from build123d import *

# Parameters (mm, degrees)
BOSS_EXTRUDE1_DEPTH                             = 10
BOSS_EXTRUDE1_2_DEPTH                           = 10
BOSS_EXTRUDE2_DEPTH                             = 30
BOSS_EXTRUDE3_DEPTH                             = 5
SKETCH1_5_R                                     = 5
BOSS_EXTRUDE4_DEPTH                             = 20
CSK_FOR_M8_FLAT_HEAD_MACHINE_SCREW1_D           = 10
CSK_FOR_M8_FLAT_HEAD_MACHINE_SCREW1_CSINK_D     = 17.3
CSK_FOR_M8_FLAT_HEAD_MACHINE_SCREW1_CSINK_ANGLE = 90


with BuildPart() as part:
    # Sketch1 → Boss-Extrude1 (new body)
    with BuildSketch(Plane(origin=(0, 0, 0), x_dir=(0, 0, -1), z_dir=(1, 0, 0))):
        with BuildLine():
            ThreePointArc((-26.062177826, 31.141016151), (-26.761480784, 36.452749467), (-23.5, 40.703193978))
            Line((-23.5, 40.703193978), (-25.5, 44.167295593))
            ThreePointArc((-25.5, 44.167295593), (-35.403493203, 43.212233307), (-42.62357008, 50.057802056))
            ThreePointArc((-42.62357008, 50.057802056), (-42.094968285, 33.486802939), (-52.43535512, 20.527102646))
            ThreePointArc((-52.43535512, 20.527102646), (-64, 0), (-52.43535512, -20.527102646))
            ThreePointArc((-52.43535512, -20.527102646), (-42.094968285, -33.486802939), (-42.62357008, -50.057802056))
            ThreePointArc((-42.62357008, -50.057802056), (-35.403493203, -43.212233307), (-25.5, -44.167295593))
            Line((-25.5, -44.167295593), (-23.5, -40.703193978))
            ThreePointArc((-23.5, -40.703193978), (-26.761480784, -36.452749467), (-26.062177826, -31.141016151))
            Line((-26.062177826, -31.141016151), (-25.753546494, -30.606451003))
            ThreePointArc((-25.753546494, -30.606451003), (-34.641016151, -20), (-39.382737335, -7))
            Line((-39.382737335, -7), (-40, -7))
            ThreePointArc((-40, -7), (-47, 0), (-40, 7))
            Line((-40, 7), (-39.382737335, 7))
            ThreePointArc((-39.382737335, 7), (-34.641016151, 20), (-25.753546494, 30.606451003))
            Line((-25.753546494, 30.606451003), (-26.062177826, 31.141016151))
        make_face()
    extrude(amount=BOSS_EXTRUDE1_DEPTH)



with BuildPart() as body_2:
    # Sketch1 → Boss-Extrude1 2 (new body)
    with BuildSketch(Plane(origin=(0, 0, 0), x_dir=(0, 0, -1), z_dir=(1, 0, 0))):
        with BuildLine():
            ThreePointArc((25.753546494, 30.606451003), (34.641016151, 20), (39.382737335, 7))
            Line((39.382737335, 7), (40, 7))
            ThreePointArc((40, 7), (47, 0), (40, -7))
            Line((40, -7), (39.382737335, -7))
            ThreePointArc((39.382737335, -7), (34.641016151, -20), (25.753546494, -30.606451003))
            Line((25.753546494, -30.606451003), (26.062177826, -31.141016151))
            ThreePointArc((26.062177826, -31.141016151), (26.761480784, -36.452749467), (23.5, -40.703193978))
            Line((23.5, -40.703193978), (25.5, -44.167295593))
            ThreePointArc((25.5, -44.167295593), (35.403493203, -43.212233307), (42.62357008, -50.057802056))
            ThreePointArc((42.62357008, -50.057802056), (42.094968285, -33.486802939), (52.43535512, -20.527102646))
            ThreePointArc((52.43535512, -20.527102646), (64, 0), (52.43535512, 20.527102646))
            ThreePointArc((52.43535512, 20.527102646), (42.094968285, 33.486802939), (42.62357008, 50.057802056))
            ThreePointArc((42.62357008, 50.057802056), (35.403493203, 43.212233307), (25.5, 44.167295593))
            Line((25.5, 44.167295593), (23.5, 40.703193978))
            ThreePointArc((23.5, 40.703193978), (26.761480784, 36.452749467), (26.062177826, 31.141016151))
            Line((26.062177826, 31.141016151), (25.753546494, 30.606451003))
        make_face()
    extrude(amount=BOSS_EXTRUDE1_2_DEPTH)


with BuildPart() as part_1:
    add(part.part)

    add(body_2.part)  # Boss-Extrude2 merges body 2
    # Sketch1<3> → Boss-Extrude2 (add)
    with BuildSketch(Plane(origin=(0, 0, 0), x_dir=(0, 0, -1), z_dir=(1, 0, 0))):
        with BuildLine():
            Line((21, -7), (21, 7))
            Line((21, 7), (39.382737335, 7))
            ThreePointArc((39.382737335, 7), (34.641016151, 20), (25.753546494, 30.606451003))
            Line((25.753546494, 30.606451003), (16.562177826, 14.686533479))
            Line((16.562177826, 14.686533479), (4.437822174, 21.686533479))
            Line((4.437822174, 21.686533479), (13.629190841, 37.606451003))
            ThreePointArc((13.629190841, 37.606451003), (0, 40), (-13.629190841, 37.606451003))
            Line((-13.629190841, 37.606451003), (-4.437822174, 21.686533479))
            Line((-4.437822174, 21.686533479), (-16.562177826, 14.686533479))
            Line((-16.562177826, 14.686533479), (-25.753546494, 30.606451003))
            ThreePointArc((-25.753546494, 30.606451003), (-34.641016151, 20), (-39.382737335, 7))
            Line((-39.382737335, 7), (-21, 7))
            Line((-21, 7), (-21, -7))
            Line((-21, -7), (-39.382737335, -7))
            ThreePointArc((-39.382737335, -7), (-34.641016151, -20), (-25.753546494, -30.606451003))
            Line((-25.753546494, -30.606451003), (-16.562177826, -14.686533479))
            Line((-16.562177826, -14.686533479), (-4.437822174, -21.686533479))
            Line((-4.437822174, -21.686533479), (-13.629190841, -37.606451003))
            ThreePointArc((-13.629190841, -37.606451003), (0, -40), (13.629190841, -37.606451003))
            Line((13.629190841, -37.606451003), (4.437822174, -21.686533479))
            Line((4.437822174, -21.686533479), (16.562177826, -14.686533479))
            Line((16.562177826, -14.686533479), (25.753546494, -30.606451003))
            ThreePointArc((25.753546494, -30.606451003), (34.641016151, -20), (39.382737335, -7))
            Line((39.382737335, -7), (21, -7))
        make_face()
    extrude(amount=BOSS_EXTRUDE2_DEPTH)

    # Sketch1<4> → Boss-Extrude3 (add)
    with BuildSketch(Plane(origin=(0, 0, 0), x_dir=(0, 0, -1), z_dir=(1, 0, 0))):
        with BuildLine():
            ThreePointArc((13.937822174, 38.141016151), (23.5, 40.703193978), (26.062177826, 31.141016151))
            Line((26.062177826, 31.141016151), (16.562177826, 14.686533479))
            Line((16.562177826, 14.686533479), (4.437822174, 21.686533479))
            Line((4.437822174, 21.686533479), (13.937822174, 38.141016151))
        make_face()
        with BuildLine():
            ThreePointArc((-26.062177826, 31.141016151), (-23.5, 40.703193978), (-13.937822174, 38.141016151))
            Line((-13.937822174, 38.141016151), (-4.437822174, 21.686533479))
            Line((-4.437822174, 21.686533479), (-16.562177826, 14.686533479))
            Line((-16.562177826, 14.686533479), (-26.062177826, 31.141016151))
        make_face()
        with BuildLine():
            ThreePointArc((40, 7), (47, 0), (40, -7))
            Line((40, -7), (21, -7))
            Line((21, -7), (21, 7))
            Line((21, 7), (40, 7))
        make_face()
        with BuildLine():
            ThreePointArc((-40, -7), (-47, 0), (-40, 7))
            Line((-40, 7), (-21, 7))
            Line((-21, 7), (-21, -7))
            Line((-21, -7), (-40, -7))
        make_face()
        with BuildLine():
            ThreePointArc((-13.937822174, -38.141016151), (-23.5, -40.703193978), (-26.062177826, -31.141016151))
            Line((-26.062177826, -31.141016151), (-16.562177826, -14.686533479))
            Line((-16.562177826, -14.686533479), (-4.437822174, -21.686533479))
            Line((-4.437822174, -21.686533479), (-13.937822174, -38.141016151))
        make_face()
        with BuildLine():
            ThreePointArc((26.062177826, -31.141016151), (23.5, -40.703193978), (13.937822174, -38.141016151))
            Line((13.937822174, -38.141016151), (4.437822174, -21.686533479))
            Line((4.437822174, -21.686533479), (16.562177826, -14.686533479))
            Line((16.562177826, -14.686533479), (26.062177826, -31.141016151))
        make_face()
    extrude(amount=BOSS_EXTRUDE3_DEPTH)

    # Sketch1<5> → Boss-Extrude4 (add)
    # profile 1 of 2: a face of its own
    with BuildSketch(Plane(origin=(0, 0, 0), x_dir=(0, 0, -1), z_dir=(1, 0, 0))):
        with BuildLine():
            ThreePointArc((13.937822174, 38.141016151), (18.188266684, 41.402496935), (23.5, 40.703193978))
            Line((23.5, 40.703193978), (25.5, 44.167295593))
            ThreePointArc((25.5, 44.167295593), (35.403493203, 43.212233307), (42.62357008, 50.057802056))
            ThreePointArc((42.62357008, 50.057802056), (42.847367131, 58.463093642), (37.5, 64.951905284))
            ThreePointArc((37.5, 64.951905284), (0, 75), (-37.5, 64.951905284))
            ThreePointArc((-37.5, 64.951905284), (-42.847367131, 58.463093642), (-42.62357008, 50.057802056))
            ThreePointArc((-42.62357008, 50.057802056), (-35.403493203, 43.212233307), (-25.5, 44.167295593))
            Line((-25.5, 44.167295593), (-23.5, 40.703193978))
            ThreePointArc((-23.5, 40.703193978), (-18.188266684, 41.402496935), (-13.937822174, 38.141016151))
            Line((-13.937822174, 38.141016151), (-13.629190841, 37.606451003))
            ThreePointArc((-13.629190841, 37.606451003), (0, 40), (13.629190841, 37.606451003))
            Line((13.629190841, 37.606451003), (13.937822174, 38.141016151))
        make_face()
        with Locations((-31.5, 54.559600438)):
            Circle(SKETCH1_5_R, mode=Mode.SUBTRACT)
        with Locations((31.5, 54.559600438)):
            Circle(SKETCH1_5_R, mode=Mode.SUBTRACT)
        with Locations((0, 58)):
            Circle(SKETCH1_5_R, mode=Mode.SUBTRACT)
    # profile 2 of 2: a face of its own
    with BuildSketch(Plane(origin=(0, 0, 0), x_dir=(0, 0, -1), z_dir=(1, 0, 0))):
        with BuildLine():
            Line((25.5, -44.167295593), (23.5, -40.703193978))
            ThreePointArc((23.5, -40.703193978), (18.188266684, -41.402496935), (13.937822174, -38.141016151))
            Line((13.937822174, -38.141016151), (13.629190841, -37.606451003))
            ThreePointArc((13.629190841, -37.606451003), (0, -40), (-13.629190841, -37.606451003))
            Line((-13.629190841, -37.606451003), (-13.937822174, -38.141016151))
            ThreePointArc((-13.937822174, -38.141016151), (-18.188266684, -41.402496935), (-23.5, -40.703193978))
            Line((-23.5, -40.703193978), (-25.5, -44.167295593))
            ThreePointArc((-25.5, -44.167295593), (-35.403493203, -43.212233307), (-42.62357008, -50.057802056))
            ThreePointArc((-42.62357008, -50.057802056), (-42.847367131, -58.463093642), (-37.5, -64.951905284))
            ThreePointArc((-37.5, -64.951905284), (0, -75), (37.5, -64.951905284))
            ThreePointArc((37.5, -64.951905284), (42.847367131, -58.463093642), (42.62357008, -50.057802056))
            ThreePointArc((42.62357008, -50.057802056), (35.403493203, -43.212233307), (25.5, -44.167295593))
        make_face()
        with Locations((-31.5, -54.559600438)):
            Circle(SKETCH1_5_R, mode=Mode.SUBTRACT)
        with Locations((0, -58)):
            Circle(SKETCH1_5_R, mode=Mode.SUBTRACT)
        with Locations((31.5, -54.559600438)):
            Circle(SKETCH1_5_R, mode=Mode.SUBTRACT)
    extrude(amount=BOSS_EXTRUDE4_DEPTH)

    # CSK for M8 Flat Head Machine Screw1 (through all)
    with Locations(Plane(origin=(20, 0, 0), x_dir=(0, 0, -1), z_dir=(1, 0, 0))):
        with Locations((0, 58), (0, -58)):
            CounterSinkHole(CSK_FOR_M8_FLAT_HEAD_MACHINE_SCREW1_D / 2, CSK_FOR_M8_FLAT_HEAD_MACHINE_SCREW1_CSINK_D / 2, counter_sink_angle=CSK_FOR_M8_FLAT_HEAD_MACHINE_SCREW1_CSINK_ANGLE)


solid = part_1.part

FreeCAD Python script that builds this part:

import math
import FreeCAD as App
import Part
import Sketcher
Q = App.Units.Quantity

doc = App.newDocument("Part")
params = doc.addObject("Spreadsheet::Sheet", "Params")
for row, (alias, value) in enumerate([
    ("sketch1_radius", "7 mm"),
    ("sketch1_radius2", "12 mm"),
    ("sketch1_radius3", "24 mm"),
    ("sketch1_radius4", "40 mm"),
    ("sketch1_length", "4 mm"),
    ("pad1_length", "10 mm"),
    ("sketch2_radius", "40 mm"),
    ("sketch2_radius2", "7 mm"),
    ("sketch2_radius3", "12 mm"),
    ("sketch2_radius4", "24 mm"),
    ("sketch2_length", "4 mm"),
    ("pad2_length", "10 mm"),
    ("sketch3_radius", "40 mm"),
    ("sketch3_width", "14 mm"),
    ("sketch3_length", "14 mm"),
    ("pad3_length", "30 mm"),
    ("sketch4_radius", "7 mm"),
    ("sketch4_height", "19 mm"),
    ("sketch4_length", "19 mm"),
    ("pad4_length", "5 mm"),
    ("sketch5_diameter", "10 mm"),
    ("sketch5_radius", "7 mm"),
    ("sketch5_radius2", "12 mm"),
    ("sketch5_radius3", "75 mm"),
    ("sketch5_radius4", "40 mm"),
    ("pad5_length", "20 mm"),
    ("sketch6_diameter", "10 mm"),
    ("hole_diameter", "10 mm"),
    ("hole_csink_diameter", "17.3 mm"),
], start=1):
    params.set(f"A{row}", alias)
    params.set(f"B{row}", "=" + value)
    params.setAlias(f"B{row}", alias)

body = doc.addObject("PartDesign::Body", "Body")

sketch1 = body.newObject("Sketcher::SketchObject", "Sketch")
sketch1.AttachmentSupport = (doc.getObject("YZ_Plane"), [""])
sketch1.MapMode = "FlatFace"
sketch1.addGeometry(Part.ArcOfCircle(Part.Circle(App.Vector(34.6, 20, 0), App.Vector(0, 0, 1), 7), math.radians(30), math.radians(120)), False)
sketch1.addGeometry(Part.LineSegment(App.Vector(40.7, 23.5, 0), App.Vector(44.2, 25.5, 0)), False)
sketch1.addGeometry(Part.ArcOfCircle(Part.Circle(App.Vector(54.6, 31.5, 0), App.Vector(0, 0, 1), 12), math.radians(112), math.radians(210)), False)
sketch1.addGeometry(Part.ArcOfCircle(Part.Circle(App.Vector(41.1, 64.9, 0), App.Vector(0, 0, 1), 24), math.radians(-149), math.radians(-68)), False)
sketch1.addGeometry(Part.ArcOfCircle(Part.Circle(App.Vector(0, 40, 0), App.Vector(0, 0, 1), 24), math.radians(31), math.radians(149)), False)
sketch1.addGeometry(Part.ArcOfCircle(Part.Circle(App.Vector(-41.1, 64.9, 0), App.Vector(0, 0, 1), 24), math.radians(-112), math.radians(-31)), False)
sketch1.addGeometry(Part.ArcOfCircle(Part.Circle(App.Vector(-54.6, 31.5, 0), App.Vector(0, 0, 1), 12), math.radians(-30), math.radians(68)), False)
sketch1.addGeometry(Part.LineSegment(App.Vector(-44.2, 25.5, 0), App.Vector(-40.7, 23.5, 0)), False)
sketch1.addGeometry(Part.ArcOfCircle(Part.Circle(App.Vector(-34.6, 20, 0), App.Vector(0, 0, 1), 7), math.radians(60), math.radians(150)), False)
sketch1.addGeometry(Part.LineSegment(App.Vector(-31.1, 26.1, 0), App.Vector(-30.6, 25.8, 0)), False)
sketch1.addGeometry(Part.ArcOfCircle(Part.Circle(App.Vector(0, 0, 0), App.Vector(0, 0, 1), 40), math.radians(100), math.radians(140)), False)
sketch1.addGeometry(Part.LineSegment(App.Vector(-7, 39.4, 0), App.Vector(-7, 40, 0)), False)
sketch1.addGeometry(Part.ArcOfCircle(Part.Circle(App.Vector(0, 40, 0), App.Vector(0, 0, 1), 7), math.radians(0), math.radians(180)), False)
sketch1.addGeometry(Part.LineSegment(App.Vector(7, 40, 0), App.Vector(7, 39.4, 0)), False)
sketch1.addGeometry(Part.ArcOfCircle(Part.Circle(App.Vector(0, 0, 0), App.Vector(0, 0, 1), 40), math.radians(40), math.radians(80)), False)
sketch1.addGeometry(Part.LineSegment(App.Vector(30.6, 25.8, 0), App.Vector(31.1, 26.1, 0)), False)
sketch1.addConstraint(Sketcher.Constraint("Coincident", 0, 1, 1, 1))
sketch1.addConstraint(Sketcher.Constraint("Coincident", 1, 2, 2, 2))
sketch1.addConstraint(Sketcher.Constraint("Tangent", 2, 1, 3, 2))
sketch1.addConstraint(Sketcher.Constraint("Tangent", 3, 1, 4, 1))
sketch1.addConstraint(Sketcher.Constraint("Tangent", 4, 2, 5, 2))
sketch1.addConstraint(Sketcher.Constraint("Tangent", 5, 1, 6, 2))
sketch1.addConstraint(Sketcher.Constraint("Coincident", 6, 1, 7, 1))
sketch1.addConstraint(Sketcher.Constraint("Coincident", 7, 2, 8, 2))
sketch1.addConstraint(Sketcher.Constraint("Tangent", 8, 1, 9, 1))
sketch1.addConstraint(Sketcher.Constraint("Coincident", 9, 2, 10, 2))
sketch1.addConstraint(Sketcher.Constraint("Coincident", 10, 1, 11, 1))
sketch1.addConstraint(Sketcher.Constraint("Tangent", 11, 2, 12, 2))
sketch1.addConstraint(Sketcher.Constraint("Tangent", 12, 1, 13, 1))
sketch1.addConstraint(Sketcher.Constraint("Coincident", 13, 2, 14, 2))
sketch1.addConstraint(Sketcher.Constraint("Coincident", 14, 1, 15, 1))
sketch1.addConstraint(Sketcher.Constraint("Tangent", 15, 2, 0, 2))
sketch1.addConstraint(Sketcher.Constraint("Vertical", 11))
sketch1.addConstraint(Sketcher.Constraint("Vertical", 13))
sketch1.addConstraint(Sketcher.Constraint("Coincident", 10, 3, -1, 1))
sketch1.addConstraint(Sketcher.Constraint("Coincident", 14, 3, -1, 1))
sketch1.addConstraint(Sketcher.Constraint("Coincident", 12, 3, 4, 3))
sketch1.addConstraint(Sketcher.Constraint("Equal", 3, 4))
sketch1.addConstraint(Sketcher.Constraint("Equal", 4, 5))
sketch1.addConstraint(Sketcher.Constraint("Equal", 2, 6))
sketch1.addConstraint(Sketcher.Constraint("Equal", 0, 8))
sketch1.addConstraint(Sketcher.Constraint("Equal", 8, 12))
sketch1.addConstraint(Sketcher.Constraint("Equal", 10, 14))
sketch1.addConstraint(Sketcher.Constraint("Symmetric", 3, 3, 5, 3, -2))
sketch1.addConstraint(Sketcher.Constraint("Symmetric", 0, 3, 8, 3, -2))
sketch1.addConstraint(Sketcher.Constraint("Symmetric", 1, 2, 6, 1, -2))
sketch1.addConstraint(Sketcher.Constraint("Parallel", 7, 9))
sketch1.addConstraint(Sketcher.Constraint("Parallel", 1, 15))
sketch1.addConstraint(Sketcher.Constraint("Horizontal", 0, 1, 7, 2))
sketch1.addConstraint(Sketcher.Constraint("Radius", 0, Q("7 mm")))
sketch1.addConstraint(Sketcher.Constraint("Radius", 2, Q("12 mm")))
sketch1.addConstraint(Sketcher.Constraint("Radius", 3, Q("24 mm")))
sketch1.addConstraint(Sketcher.Constraint("Radius", 10, Q("40 mm")))
sketch1.addConstraint(Sketcher.Constraint("Angle", 1, Q("30 deg")))
sketch1.addConstraint(Sketcher.Constraint("Distance", 1, Q("4 mm")))
sketch1.addConstraint(Sketcher.Constraint("DistanceY", -1, 1, 0, 3, Q("20 mm")))
sketch1.addConstraint(Sketcher.Constraint("DistanceY", -1, 1, 4, 3, Q("40 mm")))
sketch1.addConstraint(Sketcher.Constraint("DistanceY", 0, 1, 2, 3, Q("8 mm")))
sketch1.addConstraint(Sketcher.Constraint("DistanceY", -1, 1, 2, 3, Q("31.5 mm")))
sketch1.addConstraint(Sketcher.Constraint("DistanceX", -1, 1, 2, 3, Q("54.5596 mm")))
sketch1.setExpression("Constraints[33]", "Params.sketch1_radius")
sketch1.setExpression("Constraints[34]", "Params.sketch1_radius2")
sketch1.setExpression("Constraints[35]", "Params.sketch1_radius3")
sketch1.setExpression("Constraints[36]", "Params.sketch1_radius4")
sketch1.setExpression("Constraints[38]", "Params.sketch1_length")
pad1 = body.newObject("PartDesign::Pad", "Pad")
pad1.Profile = sketch1
pad1.setExpression("Length", "Params.pad1_length")
body2 = doc.addObject("PartDesign::Body", "Body001")

sketch2 = body2.newObject("Sketcher::SketchObject", "Sketch001")
sketch2.AttachmentSupport = (doc.getObject("YZ_Plane001"), [""])
sketch2.MapMode = "FlatFace"
sketch2.addGeometry(Part.ArcOfCircle(Part.Circle(App.Vector(0, 0, 0), App.Vector(0, 0, 1), 40), math.radians(-80), math.radians(-40)), False)
sketch2.addGeometry(Part.LineSegment(App.Vector(7, -39.4, 0), App.Vector(7, -40, 0)), False)
sketch2.addGeometry(Part.ArcOfCircle(Part.Circle(App.Vector(0, -40, 0), App.Vector(0, 0, 1), 7), math.radians(180), math.radians(360)), False)
sketch2.addGeometry(Part.LineSegment(App.Vector(-7, -40, 0), App.Vector(-7, -39.4, 0)), False)
sketch2.addGeometry(Part.ArcOfCircle(Part.Circle(App.Vector(0, 0, 0), App.Vector(0, 0, 1), 40), math.radians(-140), math.radians(-100)), False)
sketch2.addGeometry(Part.LineSegment(App.Vector(-30.6, -25.8, 0), App.Vector(-31.1, -26.1, 0)), False)
sketch2.addGeometry(Part.ArcOfCircle(Part.Circle(App.Vector(-34.6, -20, 0), App.Vector(0, 0, 1), 7), math.radians(-150), math.radians(-60)), False)
sketch2.addGeometry(Part.LineSegment(App.Vector(-40.7, -23.5, 0), App.Vector(-44.2, -25.5, 0)), False)
sketch2.addGeometry(Part.ArcOfCircle(Part.Circle(App.Vector(-54.6, -31.5, 0), App.Vector(0, 0, 1), 12), math.radians(-68), math.radians(30)), False)
sketch2.addGeometry(Part.ArcOfCircle(Part.Circle(App.Vector(-41.1, -64.9, 0), App.Vector(0, 0, 1), 24), math.radians(31), math.radians(112)), False)
sketch2.addGeometry(Part.ArcOfCircle(Part.Circle(App.Vector(0, -40, 0), App.Vector(0, 0, 1), 24), math.radians(-149), math.radians(-31)), False)
sketch2.addGeometry(Part.ArcOfCircle(Part.Circle(App.Vector(41.1, -64.9, 0), App.Vector(0, 0, 1), 24), math.radians(68), math.radians(149)), False)
sketch2.addGeometry(Part.ArcOfCircle(Part.Circle(App.Vector(54.6, -31.5, 0), App.Vector(0, 0, 1), 12), math.radians(150), math.radians(248)), False)
sketch2.addGeometry(Part.LineSegment(App.Vector(44.2, -25.5, 0), App.Vector(40.7, -23.5, 0)), False)
sketch2.addGeometry(Part.ArcOfCircle(Part.Circle(App.Vector(34.6, -20, 0), App.Vector(0, 0, 1), 7), math.radians(-120), math.radians(-30)), False)
sketch2.addGeometry(Part.LineSegment(App.Vector(31.1, -26.1, 0), App.Vector(30.6, -25.8, 0)), False)
sketch2.addConstraint(Sketcher.Constraint("Coincident", 0, 1, 1, 1))
sketch2.addConstraint(Sketcher.Constraint("Tangent", 1, 2, 2, 2))
sketch2.addConstraint(Sketcher.Constraint("Tangent", 2, 1, 3, 1))
sketch2.addConstraint(Sketcher.Constraint("Coincident", 3, 2, 4, 2))
sketch2.addConstraint(Sketcher.Constraint("Coincident", 4, 1, 5, 1))
sketch2.addConstraint(Sketcher.Constraint("Tangent", 5, 2, 6, 2))
sketch2.addConstraint(Sketcher.Constraint("Coincident", 6, 1, 7, 1))
sketch2.addConstraint(Sketcher.Constraint("Coincident", 7, 2, 8, 2))
sketch2.addConstraint(Sketcher.Constraint("Tangent", 8, 1, 9, 2))
sketch2.addConstraint(Sketcher.Constraint("Tangent", 9, 1, 10, 1))
sketch2.addConstraint(Sketcher.Constraint("Tangent", 10, 2, 11, 2))
sketch2.addConstraint(Sketcher.Constraint("Tangent", 11, 1, 12, 2))
sketch2.addConstraint(Sketcher.Constraint("Coincident", 12, 1, 13, 1))
sketch2.addConstraint(Sketcher.Constraint("Coincident", 13, 2, 14, 2))
sketch2.addConstraint(Sketcher.Constraint("Tangent", 14, 1, 15, 1))
sketch2.addConstraint(Sketcher.Constraint("Coincident", 15, 2, 0, 2))
sketch2.addConstraint(Sketcher.Constraint("Vertical", 1))
sketch2.addConstraint(Sketcher.Constraint("Vertical", 3))
sketch2.addConstraint(Sketcher.Constraint("Coincident", 0, 3, -1, 1))
sketch2.addConstraint(Sketcher.Constraint("Coincident", 4, 3, -1, 1))
sketch2.addConstraint(Sketcher.Constraint("Coincident", 10, 3, 2, 3))
sketch2.addConstraint(Sketcher.Constraint("Equal", 0, 4))
sketch2.addConstraint(Sketcher.Constraint("Equal", 2, 6))
sketch2.addConstraint(Sketcher.Constraint("Equal", 9, 10))
sketch2.addConstraint(Sketcher.Constraint("Equal", 10, 11))
sketch2.addConstraint(Sketcher.Constraint("Equal", 8, 12))
sketch2.addConstraint(Sketcher.Constraint("Equal", 6, 14))
sketch2.addConstraint(Sketcher.Constraint("Symmetric", 9, 3, 11, 3, -2))
sketch2.addConstraint(Sketcher.Constraint("Symmetric", 6, 3, 14, 3, -2))
sketch2.addConstraint(Sketcher.Constraint("Symmetric", 7, 2, 12, 1, -2))
sketch2.addConstraint(Sketcher.Constraint("Parallel", 5, 7))
sketch2.addConstraint(Sketcher.Constraint("Parallel", 13, 15))
sketch2.addConstraint(Sketcher.Constraint("Horizontal", 6, 1, 13, 2))
sketch2.addConstraint(Sketcher.Constraint("Radius", 0, Q("40 mm")))
sketch2.addConstraint(Sketcher.Constraint("Radius", 2, Q("7 mm")))
sketch2.addConstraint(Sketcher.Constraint("Radius", 8, Q("12 mm")))
sketch2.addConstraint(Sketcher.Constraint("Radius", 9, Q("24 mm")))
sketch2.addConstraint(Sketcher.Constraint("Angle", 5, Q("-150 deg")))
sketch2.addConstraint(Sketcher.Constraint("Distance", 7, Q("4 mm")))
sketch2.addConstraint(Sketcher.Constraint("DistanceY", 2, 3, -1, 1, Q("40 mm")))
sketch2.addConstraint(Sketcher.Constraint("DistanceY", 6, 3, -1, 1, Q("20 mm")))
sketch2.addConstraint(Sketcher.Constraint("DistanceY", 8, 3, 6, 1, Q("8 mm")))
sketch2.addConstraint(Sketcher.Constraint("DistanceY", 8, 3, -1, 1, Q("31.5 mm")))
sketch2.addConstraint(Sketcher.Constraint("DistanceX", 8, 3, -1, 1, Q("54.5596 mm")))
sketch2.setExpression("Constraints[33]", "Params.sketch2_radius")
sketch2.setExpression("Constraints[34]", "Params.sketch2_radius2")
sketch2.setExpression("Constraints[35]", "Params.sketch2_radius3")
sketch2.setExpression("Constraints[36]", "Params.sketch2_radius4")
sketch2.setExpression("Constraints[38]", "Params.sketch2_length")
pad2 = body2.newObject("PartDesign::Pad", "Pad001")
pad2.Profile = sketch2
pad2.setExpression("Length", "Params.pad2_length")
body.AllowCompound = True
doc.recompute()

boolean = body.newObject("PartDesign::Boolean", "Boolean")
boolean.Type = "Fuse"
boolean.addObjects([body2])

sketch3 = body.newObject("Sketcher::SketchObject", "Sketch002")
sketch3.AttachmentSupport = (doc.getObject("YZ_Plane"), [""])
sketch3.MapMode = "FlatFace"
sketch3.addGeometry(Part.LineSegment(App.Vector(-7, -21, 0), App.Vector(7, -21, 0)), False)
sketch3.addGeometry(Part.LineSegment(App.Vector(7, -21, 0), App.Vector(7, -39, 0)), False)
sketch3.addGeometry(Part.ArcOfCircle(Part.Circle(App.Vector(0, 0, 0), App.Vector(0, 0, 1), 40), math.radians(-80), math.radians(-40)), False)
sketch3.addGeometry(Part.LineSegment(App.Vector(31, -26, 0), App.Vector(15, -17, 0)), False)
sketch3.addGeometry(Part.LineSegment(App.Vector(15, -17, 0), App.Vector(22, -4, 0)), False)
sketch3.addGeometry(Part.LineSegment(App.Vector(22, -4, 0), App.Vector(38, -14, 0)), False)
sketch3.addGeometry(Part.ArcOfCircle(Part.Circle(App.Vector(0, 0, 0), App.Vector(0, 0, 1), 40), math.radians(-20), math.radians(20)), False)
sketch3.addGeometry(Part.LineSegment(App.Vector(38, 14, 0), App.Vector(22, 4, 0)), False)
sketch3.addGeometry(Part.LineSegment(App.Vector(22, 4, 0), App.Vector(15, 17, 0)), False)
sketch3.addGeometry(Part.LineSegment(App.Vector(15, 17, 0), App.Vector(31, 26, 0)), False)
sketch3.addGeometry(Part.ArcOfCircle(Part.Circle(App.Vector(0, 0, 0), App.Vector(0, 0, 1), 40), math.radians(40), math.radians(80)), False)
sketch3.addGeometry(Part.LineSegment(App.Vector(7, 39, 0), App.Vector(7, 21, 0)), False)
sketch3.addGeometry(Part.LineSegment(App.Vector(7, 21, 0), App.Vector(-7, 21, 0)), False)
sketch3.addGeometry(Part.LineSegment(App.Vector(-7, 21, 0), App.Vector(-7, 39, 0)), False)
sketch3.addGeometry(Part.ArcOfCircle(Part.Circle(App.Vector(0, 0, 0), App.Vector(0, 0, 1), 40), math.radians(100), math.radians(140)), False)
sketch3.addGeometry(Part.LineSegment(App.Vector(-31, 26, 0), App.Vector(-15, 17, 0)), False)
sketch3.addGeometry(Part.LineSegment(App.Vector(-15, 17, 0), App.Vector(-22, 4, 0)), False)
sketch3.addGeometry(Part.LineSegment(App.Vector(-22, 4, 0), App.Vector(-38, 14, 0)), False)
sketch3.addGeometry(Part.ArcOfCircle(Part.Circle(App.Vector(0, 0, 0), App.Vector(0, 0, 1), 40), math.radians(160), math.radians(200)), False)
sketch3.addGeometry(Part.LineSegment(App.Vector(-38, -14, 0), App.Vector(-22, -4, 0)), False)
sketch3.addGeometry(Part.LineSegment(App.Vector(-22, -4, 0), App.Vector(-15, -17, 0)), False)
sketch3.addGeometry(Part.LineSegment(App.Vector(-15, -17, 0), App.Vector(-31, -26, 0)), False)
sketch3.addGeometry(Part.ArcOfCircle(Part.Circle(App.Vector(0, 0, 0), App.Vector(0, 0, 1), 40), math.radians(-140), math.radians(-100)), False)
sketch3.addGeometry(Part.LineSegment(App.Vector(-7, -39, 0), App.Vector(-7, -21, 0)), False)
sketch3.addConstraint(Sketcher.Constraint("Coincident", 0, 2, 1, 1))
sketch3.addConstraint(Sketcher.Constraint("Coincident", 1, 2, 2, 1))
sketch3.addConstraint(Sketcher.Constraint("Coincident", 2, 2, 3, 1))
sketch3.addConstraint(Sketcher.Constraint("Coincident", 3, 2, 4, 1))
sketch3.addConstraint(Sketcher.Constraint("Coincident", 4, 2, 5, 1))
sketch3.addConstraint(Sketcher.Constraint("Coincident", 5, 2, 6, 1))
sketch3.addConstraint(Sketcher.Constraint("Coincident", 6, 2, 7, 1))
sketch3.addConstraint(Sketcher.Constraint("Coincident", 7, 2, 8, 1))
sketch3.addConstraint(Sketcher.Constraint("Coincident", 8, 2, 9, 1))
sketch3.addConstraint(Sketcher.Constraint("Coincident", 9, 2, 10, 1))
sketch3.addConstraint(Sketcher.Constraint("Coincident", 10, 2, 11, 1))
sketch3.addConstraint(Sketcher.Constraint("Coincident", 11, 2, 12, 1))
sketch3.addConstraint(Sketcher.Constraint("Coincident", 12, 2, 13, 1))
sketch3.addConstraint(Sketcher.Constraint("Coincident", 13, 2, 14, 1))
sketch3.addConstraint(Sketcher.Constraint("Coincident", 14, 2, 15, 1))
sketch3.addConstraint(Sketcher.Constraint("Coincident", 15, 2, 16, 1))
sketch3.addConstraint(Sketcher.Constraint("Coincident", 16, 2, 17, 1))
sketch3.addConstraint(Sketcher.Constraint("Coincident", 17, 2, 18, 1))
sketch3.addConstraint(Sketcher.Constraint("Coincident", 18, 2, 19, 1))
sketch3.addConstraint(Sketcher.Constraint("Coincident", 19, 2, 20, 1))
sketch3.addConstraint(Sketcher.Constraint("Coincident", 20, 2, 21, 1))
sketch3.addConstraint(Sketcher.Constraint("Coincident", 21, 2, 22, 1))
sketch3.addConstraint(Sketcher.Constraint("Coincident", 22, 2, 23, 1))
sketch3.addConstraint(Sketcher.Constraint("Coincident", 23, 2, 0, 1))
sketch3.addConstraint(Sketcher.Constraint("Horizontal", 0))
sketch3.addConstraint(Sketcher.Constraint("Vertical", 1))
sketch3.addConstraint(Sketcher.Constraint("Vertical", 11))
sketch3.addConstraint(Sketcher.Constraint("Horizontal", 12))
sketch3.addConstraint(Sketcher.Constraint("Vertical", 13))
sketch3.addConstraint(Sketcher.Constraint("Vertical", 23))
sketch3.addConstraint(Sketcher.Constraint("Coincident", 2, 3, -1, 1))
sketch3.addConstraint(Sketcher.Constraint("Coincident", 6, 3, -1, 1))
sketch3.addConstraint(Sketcher.Constraint("Coincident", 10, 3, -1, 1))
sketch3.addConstraint(Sketcher.Constraint("Coincident", 14, 3, -1, 1))
sketch3.addConstraint(Sketcher.Constraint("Coincident", 18, 3, -1, 1))
sketch3.addConstraint(Sketcher.Constraint("Coincident", 22, 3, -1, 1))
sketch3.addConstraint(Sketcher.Constraint("Equal", 2, 6))
sketch3.addConstraint(Sketcher.Constraint("Equal", 6, 10))
sketch3.addConstraint(Sketcher.Constraint("Equal", 10, 14))
sketch3.addConstraint(Sketcher.Constraint("Equal", 14, 18))
sketch3.addConstraint(Sketcher.Constraint("Equal", 18, 22))
sketch3.addConstraint(Sketcher.Constraint("Symmetric", 0, 2, 12, 2, -1, 1))
sketch3.addConstraint(Sketcher.Constraint("Symmetric", 3, 2, 15, 2, -1, 1))
sketch3.addConstraint(Sketcher.Constraint("Symmetric", 4, 2, 16, 2, -1, 1))
sketch3.addConstraint(Sketcher.Constraint("Symmetric", 7, 2, 19, 2, -1, 1))
sketch3.addConstraint(Sketcher.Constraint("Symmetric", 8, 2, 20, 2, -1, 1))
sketch3.addConstraint(Sketcher.Constraint("Symmetric", 8, 2, 15, 2, -2))
sketch3.addConstraint(Sketcher.Constraint("Symmetric", 7, 2, 16, 2, -2))
sketch3.addConstraint(Sketcher.Constraint("Perpendicular", 3, 4))
sketch3.addConstraint(Sketcher.Constraint("Perpendicular", 4, 5))
sketch3.addConstraint(Sketcher.Constraint("Perpendicular", 7, 8))
sketch3.addConstraint(Sketcher.Constraint("Perpendicular", 8, 9))
sketch3.addConstraint(Sketcher.Constraint("Parallel", 5, 15))
sketch3.addConstraint(Sketcher.Constraint("Perpendicular", 16, 17))
sketch3.addConstraint(Sketcher.Constraint("Parallel", 9, 19))
sketch3.addConstraint(Sketcher.Constraint("Perpendicular", 20, 21))
sketch3.addConstraint(Sketcher.Constraint("Horizontal", 10, 2, 13, 2))
sketch3.addConstraint(Sketcher.Constraint("Horizontal", 1, 2, 22, 2))
sketch3.addConstraint(Sketcher.Constraint("Equal", 3, 5))
sketch3.addConstraint(Sketcher.Constraint("Radius", 2, Q("40 mm")))
sketch3.addConstraint(Sketcher.Constraint("DistanceX", 0, 1, 0, 2, Q("14 mm")))
sketch3.addConstraint(Sketcher.Constraint("Angle", 3, Q("150 deg")))
sketch3.addConstraint(Sketcher.Constraint("Distance", 4, Q("14 mm")))
sketch3.addConstraint(Sketcher.Constraint("DistanceY", 0, 2, -1, 1, Q("21 mm")))
sketch3.addConstraint(Sketcher.Constraint("DistanceY", 4, 2, 8, 2, Q("21 mm")))
sketch3.setExpression("Constraints[59]", "Params.sketch3_radius")
sketch3.setExpression("Constraints[60]", "Params.sketch3_width")
sketch3.setExpression("Constraints[62]", "Params.sketch3_length")
pad3 = body.newObject("PartDesign::Pad", "Pad002")
pad3.Profile = sketch3
pad3.setExpression("Length", "Params.pad3_length")

sketch4 = body.newObject("Sketcher::SketchObject", "Sketch003")
sketch4.AttachmentSupport = (doc.getObject("YZ_Plane"), [""])
sketch4.MapMode = "FlatFace"
sketch4.addGeometry(Part.ArcOfCircle(Part.Circle(App.Vector(35, -20, 0), App.Vector(0, 0, 1), 7), math.radians(-120), math.radians(60)), False)
sketch4.addGeometry(Part.LineSegment(App.Vector(38, -14, 0), App.Vector(22, -4, 0)), False)
sketch4.addGeometry(Part.LineSegment(App.Vector(22, -4, 0), App.Vector(15, -17, 0)), False)
sketch4.addGeometry(Part.LineSegment(App.Vector(15, -17, 0), App.Vector(31, -26, 0)), False)
sketch4.addGeometry(Part.ArcOfCircle(Part.Circle(App.Vector(35, 20, 0), App.Vector(0, 0, 1), 7), math.radians(-60), math.radians(120)), False)
sketch4.addGeometry(Part.LineSegment(App.Vector(31, 26, 0), App.Vector(15, 17, 0)), False)
sketch4.addGeometry(Part.LineSegment(App.Vector(15, 17, 0), App.Vector(22, 4, 0)), False)
sketch4.addGeometry(Part.LineSegment(App.Vector(22, 4, 0), App.Vector(38, 14, 0)), False)
sketch4.addGeometry(Part.ArcOfCircle(Part.Circle(App.Vector(0, -40, 0), App.Vector(0, 0, 1), 7), math.radians(180), math.radians(360)), False)
sketch4.addGeometry(Part.LineSegment(App.Vector(7, -40, 0), App.Vector(7, -21, 0)), False)
sketch4.addGeometry(Part.LineSegment(App.Vector(7, -21, 0), App.Vector(-7, -21, 0)), False)
sketch4.addGeometry(Part.LineSegment(App.Vector(-7, -21, 0), App.Vector(-7, -40, 0)), False)
sketch4.addGeometry(Part.ArcOfCircle(Part.Circle(App.Vector(0, 40, 0), App.Vector(0, 0, 1), 7), math.radians(0), math.radians(180)), False)
sketch4.addGeometry(Part.LineSegment(App.Vector(-7, 40, 0), App.Vector(-7, 21, 0)), False)
sketch4.addGeometry(Part.LineSegment(App.Vector(-7, 21, 0), App.Vector(7, 21, 0)), False)
sketch4.addGeometry(Part.LineSegment(App.Vector(7, 21, 0), App.Vector(7, 40, 0)), False)
sketch4.addGeometry(Part.ArcOfCircle(Part.Circle(App.Vector(-35, 20, 0), App.Vector(0, 0, 1), 7), math.radians(60), math.radians(240)), False)
sketch4.addGeometry(Part.LineSegment(App.Vector(-38, 14, 0), App.Vector(-22, 4, 0)), False)
sketch4.addGeometry(Part.LineSegment(App.Vector(-22, 4, 0), App.Vector(-15, 17, 0)), False)
sketch4.addGeometry(Part.LineSegment(App.Vector(-15, 17, 0), App.Vector(-31, 26, 0)), False)
sketch4.addGeometry(Part.ArcOfCircle(Part.Circle(App.Vector(-35, -20, 0), App.Vector(0, 0, 1), 7), math.radians(120), math.radians(300)), False)
sketch4.addGeometry(Part.LineSegment(App.Vector(-31, -26, 0), App.Vector(-15, -17, 0)), False)
sketch4.addGeometry(Part.LineSegment(App.Vector(-15, -17, 0), App.Vector(-22, -4, 0)), False)
sketch4.addGeometry(Part.LineSegment(App.Vector(-22, -4, 0), App.Vector(-38, -14, 0)), False)
sketch4.addConstraint(Sketcher.Constraint("Tangent", 0, 2, 1, 1))
sketch4.addConstraint(Sketcher.Constraint("Coincident", 1, 2, 2, 1))
sketch4.addConstraint(Sketcher.Constraint("Coincident", 2, 2, 3, 1))
sketch4.addConstraint(Sketcher.Constraint("Tangent", 3, 2, 0, 1))
sketch4.addConstraint(Sketcher.Constraint("Tangent", 4, 2, 5, 1))
sketch4.addConstraint(Sketcher.Constraint("Coincident", 5, 2, 6, 1))
sketch4.addConstraint(Sketcher.Constraint("Coincident", 6, 2, 7, 1))
sketch4.addConstraint(Sketcher.Constraint("Tangent", 7, 2, 4, 1))
sketch4.addConstraint(Sketcher.Constraint("Tangent", 8, 2, 9, 1))
sketch4.addConstraint(Sketcher.Constraint("Coincident", 9, 2, 10, 1))
sketch4.addConstraint(Sketcher.Constraint("Coincident", 10, 2, 11, 1))
sketch4.addConstraint(Sketcher.Constraint("Tangent", 11, 2, 8, 1))
sketch4.addConstraint(Sketcher.Constraint("Tangent", 12, 2, 13, 1))
sketch4.addConstraint(Sketcher.Constraint("Coincident", 13, 2, 14, 1))
sketch4.addConstraint(Sketcher.Constraint("Coincident", 14, 2, 15, 1))
sketch4.addConstraint(Sketcher.Constraint("Tangent", 15, 2, 12, 1))
sketch4.addConstraint(Sketcher.Constraint("Tangent", 16, 2, 17, 1))
sketch4.addConstraint(Sketcher.Constraint("Coincident", 17, 2, 18, 1))
sketch4.addConstraint(Sketcher.Constraint("Coincident", 18, 2, 19, 1))
sketch4.addConstraint(Sketcher.Constraint("Tangent", 19, 2, 16, 1))
sketch4.addConstraint(Sketcher.Constraint("Tangent", 20, 2, 21, 1))
sketch4.addConstraint(Sketcher.Constraint("Coincident", 21, 2, 22, 1))
sketch4.addConstraint(Sketcher.Constraint("Coincident", 22, 2, 23, 1))
sketch4.addConstraint(Sketcher.Constraint("Tangent", 23, 2, 20, 1))
sketch4.addConstraint(Sketcher.Constraint("Vertical", 9))
sketch4.addConstraint(Sketcher.Constraint("Horizontal", 10))
sketch4.addConstraint(Sketcher.Constraint("Vertical", 11))
sketch4.addConstraint(Sketcher.Constraint("Vertical", 13))
sketch4.addConstraint(Sketcher.Constraint("Horizontal", 14))
sketch4.addConstraint(Sketcher.Constraint("Vertical", 15))
sketch4.addConstraint(Sketcher.Constraint("Equal", 0, 4))
sketch4.addConstraint(Sketcher.Constraint("Equal", 4, 8))
sketch4.addConstraint(Sketcher.Constraint("Equal", 8, 12))
sketch4.addConstraint(Sketcher.Constraint("Equal", 12, 16))
sketch4.addConstraint(Sketcher.Constraint("Equal", 16, 20))
sketch4.addConstraint(Sketcher.Constraint("Symmetric", 8, 3, 12, 3, -1, 1))
sketch4.addConstraint(Sketcher.Constraint("Symmetric", 0, 3, 16, 3, -1, 1))
sketch4.addConstraint(Sketcher.Constraint("Symmetric", 4, 3, 20, 3, -1, 1))
sketch4.addConstraint(Sketcher.Constraint("Symmetric", 1, 2, 17, 2, -1, 1))
sketch4.addConstraint(Sketcher.Constraint("Symmetric", 2, 2, 18, 2, -1, 1))
sketch4.addConstraint(Sketcher.Constraint("Symmetric", 5, 2, 21, 2, -1, 1))
sketch4.addConstraint(Sketcher.Constraint("Symmetric", 6, 2, 22, 2, -1, 1))
sketch4.addConstraint(Sketcher.Constraint("Symmetric", 4, 3, 16, 3, -2))
sketch4.addConstraint(Sketcher.Constraint("Symmetric", 6, 2, 17, 2, -2))
sketch4.addConstraint(Sketcher.Constraint("Symmetric", 5, 2, 18, 2, -2))
sketch4.addConstraint(Sketcher.Constraint("Symmetric", 10, 2, 13, 2, -1))
sketch4.addConstraint(Sketcher.Constraint("Perpendicular", 1, 2))
sketch4.addConstraint(Sketcher.Constraint("Perpendicular", 2, 3))
sketch4.addConstraint(Sketcher.Constraint("Radius", 0, Q("7 mm")))
sketch4.addConstraint(Sketcher.Constraint("DistanceY", 9, 1, 9, 2, Q("19 mm")))
sketch4.addConstraint(Sketcher.Constraint("Angle", 1, Q("150 deg")))
sketch4.addConstraint(Sketcher.Constraint("Distance", 1, Q("19 mm")))
sketch4.addConstraint(Sketcher.Constraint("DistanceY", 0, 3, -1, 1, Q("20 mm")))
sketch4.addConstraint(Sketcher.Constraint("DistanceY", 8, 3, -1, 1, Q("40 mm")))
sketch4.addConstraint(Sketcher.Constraint("DistanceX", -1, 1, 0, 3, Q("34.641016 mm")))
sketch4.setExpression("Constraints[48]", "Params.sketch4_radius")
sketch4.setExpression("Constraints[49]", "Params.sketch4_height")
sketch4.setExpression("Constraints[51]", "Params.sketch4_length")
pad4 = body.newObject("PartDesign::Pad", "Pad003")
pad4.Profile = sketch4
pad4.setExpression("Length", "Params.pad4_length")

sketch5 = body.newObject("Sketcher::SketchObject", "Sketch004")
sketch5.AttachmentSupport = (doc.getObject("YZ_Plane"), [""])
sketch5.MapMode = "FlatFace"
sketch5.addGeometry(Part.ArcOfCircle(Part.Circle(App.Vector(34.6, -20, 0), App.Vector(0, 0, 1), 7), math.radians(-30), math.radians(60)), False)
sketch5.addGeometry(Part.LineSegment(App.Vector(40.7, -23.5, 0), App.Vector(44.2, -25.5, 0)), False)
sketch5.addGeometry(Part.ArcOfCircle(Part.Circle(App.Vector(54.6, -31.5, 0), App.Vector(0, 0, 1), 12), math.radians(150), math.radians(248)), False)
sketch5.addGeometry(Part.ArcOfCircle(Part.Circle(App.Vector(54.6, -31.5, 0), App.Vector(0, 0, 1), 12), math.radians(-112), math.radians(-30)), False)
sketch5.addGeometry(Part.ArcOfCircle(Part.Circle(App.Vector(0, 0, 0), App.Vector(0, 0, 1), 75), math.radians(-30), math.radians(30)), False)
sketch5.addGeometry(Part.ArcOfCircle(Part.Circle(App.Vector(54.6, 31.5, 0), App.Vector(0, 0, 1), 12), math.radians(30), math.radians(112)), False)
sketch5.addGeometry(Part.ArcOfCircle(Part.Circle(App.Vector(54.6, 31.5, 0), App.Vector(0, 0, 1), 12), math.radians(112), math.radians(210)), False)
sketch5.addGeometry(Part.LineSegment(App.Vector(44.2, 25.5, 0), App.Vector(40.7, 23.5, 0)), False)
sketch5.addGeometry(Part.ArcOfCircle(Part.Circle(App.Vector(34.6, 20, 0), App.Vector(0, 0, 1), 7), math.radians(-60), math.radians(30)), False)
sketch5.addGeometry(Part.LineSegment(App.Vector(38.1, 13.9, 0), App.Vector(37.6, 13.6, 0)), False)
sketch5.addGeometry(Part.ArcOfCircle(Part.Circle(App.Vector(0, 0, 0), App.Vector(0, 0, 1), 40), math.radians(-20), math.radians(20)), False)
sketch5.addGeometry(Part.LineSegment(App.Vector(37.6, -13.6, 0), App.Vector(38.1, -13.9, 0)), False)
sketch5.addGeometry(Part.Circle(App.Vector(54.6, 31.5, 0), App.Vector(0, 0, 1), 5), False)
sketch5.addGeometry(Part.Circle(App.Vector(54.6, -31.5, 0), App.Vector(0, 0, 1), 5), False)
sketch5.addGeometry(Part.Circle(App.Vector(58, 0, 0), App.Vector(0, 0, 1), 5), False)
sketch5.addGeometry(Part.LineSegment(App.Vector(-44.2, -25.5, 0), App.Vector(-40.7, -23.5, 0)), False)
sketch5.addGeometry(Part.ArcOfCircle(Part.Circle(App.Vector(-34.6, -20, 0), App.Vector(0, 0, 1), 7), math.radians(120), math.radians(210)), False)
sketch5.addGeometry(Part.LineSegment(App.Vector(-38.1, -13.9, 0), App.Vector(-37.6, -13.6, 0)), False)
sketch5.addGeometry(Part.ArcOfCircle(Part.Circle(App.Vector(0, 0, 0), App.Vector(0, 0, 1), 40), math.radians(160), math.radians(200)), False)
sketch5.addGeometry(Part.LineSegment(App.Vector(-37.6, 13.6, 0), App.Vector(-38.1, 13.9, 0)), False)
sketch5.addGeometry(Part.ArcOfCircle(Part.Circle(App.Vector(-34.6, 20, 0), App.Vector(0, 0, 1), 7), math.radians(150), math.radians(240)), False)
sketch5.addGeometry(Part.LineSegment(App.Vector(-40.7, 23.5, 0), App.Vector(-44.2, 25.5, 0)), False)
sketch5.addGeometry(Part.ArcOfCircle(Part.Circle(App.Vector(-54.6, 31.5, 0), App.Vector(0, 0, 1), 12), math.radians(-30), math.radians(68)), False)
sketch5.addGeometry(Part.ArcOfCircle(Part.Circle(App.Vector(-54.6, 31.5, 0), App.Vector(0, 0, 1), 12), math.radians(68), math.radians(150)), False)
sketch5.addGeometry(Part.ArcOfCircle(Part.Circle(App.Vector(0, 0, 0), App.Vector(0, 0, 1), 75), math.radians(150), math.radians(210)), False)
sketch5.addGeometry(Part.ArcOfCircle(Part.Circle(App.Vector(-54.6, -31.5, 0), App.Vector(0, 0, 1), 12), math.radians(-150), math.radians(-68)), False)
sketch5.addGeometry(Part.ArcOfCircle(Part.Circle(App.Vector(-54.6, -31.5, 0), App.Vector(0, 0, 1), 12), math.radians(-68), math.radians(30)), False)
sketch5.addGeometry(Part.Circle(App.Vector(-58, 0, 0), App.Vector(0, 0, 1), 5), False)
sketch5.addGeometry(Part.Circle(App.Vector(-54.6, 31.5, 0), App.Vector(0, 0, 1), 5), False)
sketch5.addGeometry(Part.Circle(App.Vector(-54.6, -31.5, 0), App.Vector(0, 0, 1), 5), False)
sketch5.addConstraint(Sketcher.Constraint("Coincident", 0, 1, 1, 1))
sketch5.addConstraint(Sketcher.Constraint("Coincident", 1, 2, 2, 1))
sketch5.addConstraint(Sketcher.Constraint("Tangent", 2, 2, 3, 1))
sketch5.addConstraint(Sketcher.Constraint("Tangent", 3, 2, 4, 1))
sketch5.addConstraint(Sketcher.Constraint("Tangent", 4, 2, 5, 1))
sketch5.addConstraint(Sketcher.Constraint("Tangent", 5, 2, 6, 1))
sketch5.addConstraint(Sketcher.Constraint("Coincident", 6, 2, 7, 1))
sketch5.addConstraint(Sketcher.Constraint("Coincident", 7, 2, 8, 2))
sketch5.addConstraint(Sketcher.Constraint("Tangent", 8, 1, 9, 1))
sketch5.addConstraint(Sketcher.Constraint("Coincident", 9, 2, 10, 2))
sketch5.addConstraint(Sketcher.Constraint("Coincident", 10, 1, 11, 1))
sketch5.addConstraint(Sketcher.Constraint("Tangent", 11, 2, 0, 2))
sketch5.addConstraint(Sketcher.Constraint("Coincident", 15, 2, 16, 2))
sketch5.addConstraint(Sketcher.Constraint("Tangent", 16, 1, 17, 1))
sketch5.addConstraint(Sketcher.Constraint("Coincident", 17, 2, 18, 2))
sketch5.addConstraint(Sketcher.Constraint("Coincident", 18, 1, 19, 1))
sketch5.addConstraint(Sketcher.Constraint("Tangent", 19, 2, 20, 2))
sketch5.addConstraint(Sketcher.Constraint("Coincident", 20, 1, 21, 1))
sketch5.addConstraint(Sketcher.Constraint("Coincident", 21, 2, 22, 1))
sketch5.addConstraint(Sketcher.Constraint("Tangent", 22, 2, 23, 1))
sketch5.addConstraint(Sketcher.Constraint("Tangent", 23, 2, 24, 1))
sketch5.addConstraint(Sketcher.Constraint("Tangent", 24, 2, 25, 1))
sketch5.addConstraint(Sketcher.Constraint("Tangent", 25, 2, 26, 1))
sketch5.addConstraint(Sketcher.Constraint("Coincident", 26, 2, 15, 1))
sketch5.addConstraint(Sketcher.Constraint("Coincident", 4, 3, -1, 1))
sketch5.addConstraint(Sketcher.Constraint("Coincident", 10, 3, -1, 1))
sketch5.addConstraint(Sketcher.Constraint("Coincident", 18, 3, -1, 1))
sketch5.addConstraint(Sketcher.Constraint("Coincident", 24, 3, -1, 1))
sketch5.addConstraint(Sketcher.Constraint("Coincident", 12, 3, 5, 3))
sketch5.addConstraint(Sketcher.Constraint("Coincident", 13, 3, 2, 3))
sketch5.addConstraint(Sketcher.Constraint("Coincident", 28, 3, 22, 3))
sketch5.addConstraint(Sketcher.Constraint("Coincident", 29, 3, 25, 3))
sketch5.addConstraint(Sketcher.Constraint("Equal", 2, 3))
sketch5.addConstraint(Sketcher.Constraint("Equal", 3, 5))
sketch5.addConstraint(Sketcher.Constraint("Equal", 5, 6))
sketch5.addConstraint(Sketcher.Constraint("Equal", 0, 8))
sketch5.addConstraint(Sketcher.Constraint("Equal", 12, 13))
sketch5.addConstraint(Sketcher.Constraint("Equal", 13, 14))
sketch5.addConstraint(Sketcher.Constraint("Equal", 8, 16))
sketch5.addConstraint(Sketcher.Constraint("Equal", 10, 18))
sketch5.addConstraint(Sketcher.Constraint("Equal", 16, 20))
sketch5.addConstraint(Sketcher.Constraint("Equal", 6, 22))
sketch5.addConstraint(Sketcher.Constraint("Equal", 22, 23))
sketch5.addConstraint(Sketcher.Constraint("Equal", 4, 24))
sketch5.addConstraint(Sketcher.Constraint("Equal", 23, 25))
sketch5.addConstraint(Sketcher.Constraint("Equal", 25, 26))
sketch5.addConstraint(Sketcher.Constraint("Equal", 14, 27))
sketch5.addConstraint(Sketcher.Constraint("Equal", 27, 28))
sketch5.addConstraint(Sketcher.Constraint("Equal", 28, 29))
sketch5.addConstraint(Sketcher.Constraint("Symmetric", 8, 3, 16, 3, -1, 1))
sketch5.addConstraint(Sketcher.Constraint("Symmetric", 0, 3, 20, 3, -1, 1))
sketch5.addConstraint(Sketcher.Constraint("Symmetric", 14, 3, 27, 3, -1, 1))
sketch5.addConstraint(Sketcher.Constraint("Symmetric", 2, 2, 22, 2, -1, 1))
sketch5.addConstraint(Sketcher.Constraint("Symmetric", 5, 2, 25, 2, -1, 1))
sketch5.addConstraint(Sketcher.Constraint("Symmetric", 0, 3, 16, 3, -2))
sketch5.addConstraint(Sketcher.Constraint("Symmetric", 5, 2, 22, 2, -2))
sketch5.addConstraint(Sketcher.Constraint("PointOnObject", 14, 3, -1))
sketch5.addConstraint(Sketcher.Constraint("Parallel", 7, 9))
sketch5.addConstraint(Sketcher.Constraint("Parallel", 1, 11))
sketch5.addConstraint(Sketcher.Constraint("Parallel", 9, 15))
sketch5.addConstraint(Sketcher.Constraint("Parallel", 15, 17))
sketch5.addConstraint(Sketcher.Constraint("Parallel", 11, 19))
sketch5.addConstraint(Sketcher.Constraint("Parallel", 19, 21))
sketch5.addConstraint(Sketcher.Constraint("Horizontal", 0, 1, 15, 2))
sketch5.addConstraint(Sketcher.Constraint("Horizontal", 11, 2, 16, 1))
sketch5.addConstraint(Sketcher.Constraint("Horizontal", 7, 2, 20, 1))
sketch5.addConstraint(Sketcher.Constraint("Vertical", 1, 2, 6, 2))
sketch5.addConstraint(Sketcher.Constraint("Diameter", 12, Q("10 mm")))
sketch5.addConstraint(Sketcher.Constraint("Radius", 0, Q("7 mm")))
sketch5.addConstraint(Sketcher.Constraint("Radius", 2, Q("12 mm")))
sketch5.addConstraint(Sketcher.Constraint("Radius", 4, Q("75 mm")))
sketch5.addConstraint(Sketcher.Constraint("Radius", 10, Q("40 mm")))
sketch5.addConstraint(Sketcher.Constraint("Angle", 1, Q("-30 deg")))
sketch5.addConstraint(Sketcher.Constraint("Distance", 1, Q("4 mm")))
sketch5.addConstraint(Sketcher.Constraint("DistanceY", 0, 3, -1, 1, Q("20 mm")))
sketch5.addConstraint(Sketcher.Constraint("DistanceX", -1, 1, 14, 3, Q("58 mm")))
sketch5.addConstraint(Sketcher.Constraint("DistanceY", 3, 3, 5, 3, Q("63 mm")))
sketch5.addConstraint(Sketcher.Constraint("DistanceY", 3, 3, 0, 1, Q("8 mm")))
sketch5.addConstraint(Sketcher.Constraint("DistanceX", 2, 2, 2, 3, Q("4.501798 mm")))
sketch5.setExpression("Constraints[67]", "Params.sketch5_diameter")
sketch5.setExpression("Constraints[68]", "Params.sketch5_radius")
sketch5.setExpression("Constraints[69]", "Params.sketch5_radius2")
sketch5.setExpression("Constraints[70]", "Params.sketch5_radius3")
sketch5.setExpression("Constraints[71]", "Params.sketch5_radius4")
pad5 = body.newObject("PartDesign::Pad", "Pad004")
pad5.Profile = sketch5
pad5.setExpression("Length", "Params.pad5_length")

sketch6 = body.newObject("Sketcher::SketchObject", "Sketch005")
sketch6.AttachmentSupport = (doc.getObject("YZ_Plane"), [""])
sketch6.MapMode = "FlatFace"
sketch6.AttachmentOffset = App.Placement(App.Vector(0, 0, 20), App.Rotation())
sketch6.addGeometry(Part.Circle(App.Vector(58, 0, 0), App.Vector(0, 0, 1), 5), False)
sketch6.addGeometry(Part.Circle(App.Vector(-58, 0, 0), App.Vector(0, 0, 1), 5), False)
sketch6.addConstraint(Sketcher.Constraint("Equal", 0, 1))
sketch6.addConstraint(Sketcher.Constraint("Symmetric", 0, 3, 1, 3, -1, 1))
sketch6.addConstraint(Sketcher.Constraint("PointOnObject", 0, 3, -1))
sketch6.addConstraint(Sketcher.Constraint("Diameter", 0, Q("10 mm")))
sketch6.addConstraint(Sketcher.Constraint("DistanceX", -1, 1, 0, 3, Q("58 mm")))
sketch6.setExpression("Constraints[3]", "Params.sketch6_diameter")
doc.recompute()
hole = body.newObject("PartDesign::Hole", "Hole")
hole.Profile = sketch6
hole.ThreadType = "None"
hole.setExpression("Diameter", "Params.hole_diameter")
hole.DepthType = "ThroughAll"
hole.HoleCutType = "Countersink"
hole.setExpression("HoleCutDiameter", "Params.hole_csink_diameter")
hole.HoleCutCountersinkAngle = 90

doc.recompute()
